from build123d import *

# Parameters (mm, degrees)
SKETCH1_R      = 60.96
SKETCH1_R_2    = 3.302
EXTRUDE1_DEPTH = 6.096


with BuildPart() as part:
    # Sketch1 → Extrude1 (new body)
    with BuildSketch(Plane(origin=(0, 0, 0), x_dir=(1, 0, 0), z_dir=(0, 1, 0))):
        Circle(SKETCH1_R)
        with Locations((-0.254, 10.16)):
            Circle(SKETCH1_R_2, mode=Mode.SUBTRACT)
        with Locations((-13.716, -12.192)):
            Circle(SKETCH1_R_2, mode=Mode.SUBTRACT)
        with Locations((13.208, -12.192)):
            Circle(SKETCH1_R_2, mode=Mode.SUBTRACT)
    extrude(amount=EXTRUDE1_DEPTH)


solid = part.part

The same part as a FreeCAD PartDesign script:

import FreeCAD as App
import Part
import Sketcher
from FreeCAD import Vector
Q = App.Units.Quantity

doc = App.newDocument("Part")
body = doc.addObject("PartDesign::Body", "Body")

# Sketch on XZ plane
sketch1 = body.newObject("Sketcher::SketchObject", "Sketch")
sketch1.AttachmentSupport = (doc.getObject("XZ_Plane"), [""])
sketch1.MapMode = "FlatFace"
sketch1.addGeometry([
    Part.Circle(Vector(0, 0, 0), Vector(0, 0, 1), 61),
    Part.Circle(Vector(-13.7, 12.2, 0), Vector(0, 0, 1), 3.3),
    Part.Circle(Vector(13.2, 12.2, 0), Vector(0, 0, 1), 3.3),
    Part.Circle(Vector(-0.3, -10.2, 0), Vector(0, 0, 1), 3.3),
], False)
sketch1.addConstraint([
    Sketcher.Constraint("Coincident", 0, 3, -1, 1),
    Sketcher.Constraint("Equal", 1, 2),
    Sketcher.Constraint("Equal", 2, 3),
    Sketcher.Constraint("Horizontal", 1, 3, 2, 3),
    Sketcher.Constraint("Diameter", 0, Q("4.8 in")),
    Sketcher.Constraint("Diameter", 1, Q("0.26 in")),
    Sketcher.Constraint("DistanceY", 3, 3, -1, 1, Q("0.4 in")),
    Sketcher.Constraint("DistanceX", 1, 3, -1, 1, Q("0.54 in")),
    Sketcher.Constraint("DistanceY", -1, 1, 1, 3, Q("0.48 in")),
    Sketcher.Constraint("DistanceX", -1, 1, 2, 3, Q("0.52 in")),
    Sketcher.Constraint("DistanceX", 3, 3, -1, 1, Q("0.01 in")),
])
pad1 = body.newObject("PartDesign::Pad", "Pad")
pad1.Profile = sketch1
pad1.Length = Q("0.24 in")
pad1.Reversed = True

doc.recompute()
